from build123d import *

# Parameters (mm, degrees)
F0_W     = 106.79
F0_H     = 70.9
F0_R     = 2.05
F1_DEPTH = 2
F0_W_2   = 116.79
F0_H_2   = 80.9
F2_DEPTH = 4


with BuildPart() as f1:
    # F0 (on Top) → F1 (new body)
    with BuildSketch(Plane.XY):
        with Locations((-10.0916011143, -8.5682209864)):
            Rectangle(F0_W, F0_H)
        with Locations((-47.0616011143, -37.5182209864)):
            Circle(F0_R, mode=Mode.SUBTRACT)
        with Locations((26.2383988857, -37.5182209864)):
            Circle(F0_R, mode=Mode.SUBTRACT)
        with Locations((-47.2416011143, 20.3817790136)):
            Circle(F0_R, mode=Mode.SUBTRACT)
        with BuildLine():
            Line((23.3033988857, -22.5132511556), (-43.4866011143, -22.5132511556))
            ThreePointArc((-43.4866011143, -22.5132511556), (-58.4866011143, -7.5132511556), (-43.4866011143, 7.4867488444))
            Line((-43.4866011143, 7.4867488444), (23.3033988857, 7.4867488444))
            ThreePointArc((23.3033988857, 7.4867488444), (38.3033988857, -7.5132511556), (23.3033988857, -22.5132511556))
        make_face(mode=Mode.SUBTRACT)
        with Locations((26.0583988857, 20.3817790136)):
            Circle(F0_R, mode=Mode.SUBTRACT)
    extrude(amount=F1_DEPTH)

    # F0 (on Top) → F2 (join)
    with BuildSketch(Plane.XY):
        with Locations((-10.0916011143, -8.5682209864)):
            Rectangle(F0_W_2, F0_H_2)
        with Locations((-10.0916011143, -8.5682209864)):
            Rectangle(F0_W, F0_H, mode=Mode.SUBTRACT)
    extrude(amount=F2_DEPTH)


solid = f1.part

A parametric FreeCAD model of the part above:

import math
import FreeCAD as App
import Part
import Sketcher


def add_polygon(sketch, points):
    """Adds a closed chain of lines whose ends are joined by coincident constraints."""
    first, n = sketch.GeometryCount, len(points)
    for a, b in zip(points, points[1:] + points[:1]):
        sketch.addGeometry(Part.LineSegment(App.Vector(*a, 0), App.Vector(*b, 0)), False)
    for i in range(n):
        sketch.addConstraint(Sketcher.Constraint("Coincident", first + i, 2, first + (i + 1) % n, 1))

doc = App.newDocument("Part")
body = doc.addObject("PartDesign::Body", "Body")

# Sketch on XY plane
sketch1 = doc.addObject("Sketcher::SketchObject", "Sketch")
body.addObject(sketch1)
sketch1.AttachmentSupport = (doc.XY_Plane, [""])
sketch1.MapMode = "FlatFace"
add_polygon(sketch1, [(-63.5, 26.9), (-63.5, -44), (43.3, -44), (43.3, 26.9)])  # lines 0-3
sketch1.addGeometry(Part.Circle(App.Vector(-47.1, -37.5, 0), App.Vector(0, 0, 1), 2), False)  # 4
sketch1.addGeometry(Part.Circle(App.Vector(26.2, -37.5, 0), App.Vector(0, 0, 1), 2), False)  # 5
sketch1.addGeometry(Part.Circle(App.Vector(-47.2, 20.4, 0), App.Vector(0, 0, 1), 2), False)  # 6
sketch1.addGeometry(Part.ArcOfCircle(Part.Circle(App.Vector(23.3, -7.5, 0), App.Vector(0, 0, 1), 15), math.radians(-90), math.radians(90)), False)  # 7
sketch1.addGeometry(Part.LineSegment(App.Vector(23.3, -22.5, 0), App.Vector(-43.5, -22.5, 0)), False)  # 8
sketch1.addGeometry(Part.ArcOfCircle(Part.Circle(App.Vector(-43.5, -7.5, 0), App.Vector(0, 0, 1), 15), math.radians(90), math.radians(270)), False)  # 9
sketch1.addGeometry(Part.LineSegment(App.Vector(-43.5, 7.5, 0), App.Vector(23.3, 7.5, 0)), False)  # 10
sketch1.addGeometry(Part.Circle(App.Vector(26.1, 20.4, 0), App.Vector(0, 0, 1), 2), False)  # 11
sketch1.addConstraint([
    Sketcher.Constraint("Tangent", 7, 1, 8, 1),
    Sketcher.Constraint("Tangent", 8, 2, 9, 2),
    Sketcher.Constraint("Tangent", 9, 1, 10, 1),
    Sketcher.Constraint("Tangent", 10, 2, 7, 2),
    Sketcher.Constraint("Vertical", 0),
    Sketcher.Constraint("Horizontal", 1),
    Sketcher.Constraint("Vertical", 2),
    Sketcher.Constraint("Horizontal", 3),
    Sketcher.Constraint("Horizontal", 8),
    Sketcher.Constraint("Horizontal", 10),
    Sketcher.Constraint("Equal", 4, 5),
    Sketcher.Constraint("Equal", 5, 6),
    Sketcher.Constraint("Equal", 6, 11),
    Sketcher.Constraint("Horizontal", 4, 3, 5, 3),
    Sketcher.Constraint("Horizontal", 6, 3, 11, 3),
    Sketcher.Constraint("Radius", 7, 15.0),
    Sketcher.Constraint("Diameter", 4, 4.1),
    Sketcher.Constraint("DistanceY", 0, 2, 0, 1, 70.9),
    Sketcher.Constraint("DistanceX", 0, 2, 9, 3, 20.0),
    Sketcher.Constraint("DistanceX", 7, 3, 1, 2, 20.0),
    Sketcher.Constraint("DistanceX", 1, 1, 1, 2, 106.79),
    Sketcher.Constraint("DistanceX", 4, 3, 5, 3, 73.3),
    Sketcher.Constraint("DistanceY", 4, 3, 6, 3, 57.9),
    Sketcher.Constraint("DistanceX", 6, 3, 11, 3, 73.3),
    Sketcher.Constraint("DistanceY", 0, 2, 4, 3, 6.5),
    Sketcher.Constraint("DistanceX", 6, 3, 4, 3, 0.18),
    Sketcher.Constraint("DistanceX", 7, 3, 5, 3, 2.935),
    Sketcher.Constraint("DistanceX", 4, 3, -1, 1, 47.061601),
    Sketcher.Constraint("DistanceY", 4, 3, -1, 1, 37.518221),
    Sketcher.Constraint("DistanceY", 7, 3, -1, 1, 7.513251),
])
pad1 = doc.addObject("PartDesign::Pad", "Pad")
body.addObject(pad1)
pad1.Profile = sketch1
pad1.Length = 2

# Sketch on XY plane
sketch2 = doc.addObject("Sketcher::SketchObject", "Sketch001")
body.addObject(sketch2)
sketch2.AttachmentSupport = (doc.XY_Plane, [""])
sketch2.MapMode = "FlatFace"
add_polygon(sketch2, [(-68, 32), (-68, -49), (48, -49), (48, 32)])  # lines 0-3
add_polygon(sketch2, [(43, -44), (-63, -44), (-63, 27), (43, 27)])  # lines 4-7
sketch2.addConstraint([
    Sketcher.Constraint("Vertical", 0),
    Sketcher.Constraint("Horizontal", 1),
    Sketcher.Constraint("Vertical", 2),
    Sketcher.Constraint("Horizontal", 3),
    Sketcher.Constraint("Horizontal", 4),
    Sketcher.Constraint("Vertical", 5),
    Sketcher.Constraint("Horizontal", 6),
    Sketcher.Constraint("Vertical", 7),
    Sketcher.Constraint("DistanceY", 0, 2, 0, 1, 80.9),
    Sketcher.Constraint("DistanceY", 5, 1, 5, 2, 70.9),
    Sketcher.Constraint("DistanceX", 0, 2, 4, 2, 5.0),
    Sketcher.Constraint("DistanceY", 0, 2, 4, 2, 5.0),
    Sketcher.Constraint("DistanceX", 6, 2, 2, 2, 5.0),
    Sketcher.Constraint("DistanceX", 1, 1, 1, 2, 116.79),
    Sketcher.Constraint("DistanceX", 0, 2, -1, 1, 68.486601),
    Sketcher.Constraint("DistanceY", 0, 2, -1, 1, 49.018221),
])
pad2 = doc.addObject("PartDesign::Pad", "Pad001")
body.addObject(pad2)
pad2.Profile = sketch2
pad2.Length = 4

doc.recompute()
